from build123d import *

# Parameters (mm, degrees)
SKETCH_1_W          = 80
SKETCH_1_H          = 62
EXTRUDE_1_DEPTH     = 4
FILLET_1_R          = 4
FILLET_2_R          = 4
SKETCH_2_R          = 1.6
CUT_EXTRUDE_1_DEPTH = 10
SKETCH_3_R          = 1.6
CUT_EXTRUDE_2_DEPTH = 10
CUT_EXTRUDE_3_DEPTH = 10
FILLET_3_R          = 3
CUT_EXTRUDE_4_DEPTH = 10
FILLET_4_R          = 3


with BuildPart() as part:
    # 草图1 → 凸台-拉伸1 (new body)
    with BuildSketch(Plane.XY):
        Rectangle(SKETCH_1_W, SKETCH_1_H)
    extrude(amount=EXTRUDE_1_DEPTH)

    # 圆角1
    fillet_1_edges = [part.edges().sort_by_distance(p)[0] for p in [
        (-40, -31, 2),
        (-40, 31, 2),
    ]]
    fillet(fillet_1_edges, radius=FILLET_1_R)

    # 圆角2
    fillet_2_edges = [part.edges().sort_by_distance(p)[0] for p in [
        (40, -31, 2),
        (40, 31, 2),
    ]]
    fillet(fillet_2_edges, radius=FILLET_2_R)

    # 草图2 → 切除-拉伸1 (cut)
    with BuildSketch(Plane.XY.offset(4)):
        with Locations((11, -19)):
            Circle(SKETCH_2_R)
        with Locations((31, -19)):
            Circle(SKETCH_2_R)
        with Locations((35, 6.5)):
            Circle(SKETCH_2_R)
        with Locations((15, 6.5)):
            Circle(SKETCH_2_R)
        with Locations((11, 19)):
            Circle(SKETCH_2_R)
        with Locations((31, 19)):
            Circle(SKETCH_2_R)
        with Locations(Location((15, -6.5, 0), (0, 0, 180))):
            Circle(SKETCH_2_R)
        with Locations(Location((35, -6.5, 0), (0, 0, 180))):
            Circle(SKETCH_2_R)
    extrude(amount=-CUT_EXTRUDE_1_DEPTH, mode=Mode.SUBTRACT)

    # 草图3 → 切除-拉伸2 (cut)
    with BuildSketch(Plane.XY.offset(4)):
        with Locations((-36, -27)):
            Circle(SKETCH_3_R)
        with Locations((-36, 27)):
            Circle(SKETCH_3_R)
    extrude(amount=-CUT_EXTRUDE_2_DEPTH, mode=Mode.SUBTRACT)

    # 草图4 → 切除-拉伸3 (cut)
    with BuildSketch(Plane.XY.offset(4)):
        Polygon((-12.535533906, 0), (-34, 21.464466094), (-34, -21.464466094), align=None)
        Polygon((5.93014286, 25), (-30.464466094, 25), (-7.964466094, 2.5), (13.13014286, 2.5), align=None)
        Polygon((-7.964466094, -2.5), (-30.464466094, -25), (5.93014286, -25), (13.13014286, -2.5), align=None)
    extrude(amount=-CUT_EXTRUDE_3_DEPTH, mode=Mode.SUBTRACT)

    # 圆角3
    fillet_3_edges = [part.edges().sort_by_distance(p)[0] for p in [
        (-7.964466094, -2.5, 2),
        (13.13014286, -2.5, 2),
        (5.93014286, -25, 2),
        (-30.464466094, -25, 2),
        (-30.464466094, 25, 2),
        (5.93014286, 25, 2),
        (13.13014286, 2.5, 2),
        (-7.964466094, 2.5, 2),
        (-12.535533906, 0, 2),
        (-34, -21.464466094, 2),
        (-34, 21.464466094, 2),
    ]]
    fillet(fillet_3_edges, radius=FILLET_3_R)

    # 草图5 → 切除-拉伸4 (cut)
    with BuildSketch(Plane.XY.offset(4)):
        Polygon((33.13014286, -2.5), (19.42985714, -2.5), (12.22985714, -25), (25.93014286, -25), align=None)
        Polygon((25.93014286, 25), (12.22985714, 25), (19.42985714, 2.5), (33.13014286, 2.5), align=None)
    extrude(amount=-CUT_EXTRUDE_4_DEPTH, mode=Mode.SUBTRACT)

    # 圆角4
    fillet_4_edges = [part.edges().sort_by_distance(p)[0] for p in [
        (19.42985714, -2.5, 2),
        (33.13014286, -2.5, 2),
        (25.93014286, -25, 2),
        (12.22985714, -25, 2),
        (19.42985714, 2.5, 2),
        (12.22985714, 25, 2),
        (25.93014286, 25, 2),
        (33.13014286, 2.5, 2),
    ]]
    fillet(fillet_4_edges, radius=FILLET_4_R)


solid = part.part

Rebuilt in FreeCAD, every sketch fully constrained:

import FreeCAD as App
import Part
import Sketcher
Q = App.Units.Quantity


def edges_at(feature, points):
    """Names of the edges that pass closest to the given points."""
    edges = feature.Shape.Edges
    near = lambda p: min(range(len(edges)), key=lambda i: edges[i].distToShape(Part.Vertex(*p))[0])
    return sorted({f"Edge{near(p) + 1}" for p in points})


def add_polygon(sketch, points):
    """Adds a closed chain of lines whose ends are joined by coincident constraints."""
    first, n = sketch.GeometryCount, len(points)
    for a, b in zip(points, points[1:] + points[:1]):
        sketch.addGeometry(Part.LineSegment(App.Vector(*a, 0), App.Vector(*b, 0)), False)
    for i in range(n):
        sketch.addConstraint(Sketcher.Constraint("Coincident", first + i, 2, first + (i + 1) % n, 1))

doc = App.newDocument("Part")
body = doc.addObject("PartDesign::Body", "Body")

# Sketch on XY plane
sketch1 = doc.addObject("Sketcher::SketchObject", "Sketch")
body.addObject(sketch1)
sketch1.AttachmentSupport = (doc.XY_Plane, [""])
sketch1.MapMode = "FlatFace"
add_polygon(sketch1, [(-40, 31), (-40, -31), (40, -31), (40, 31)])  # lines 0-3
sketch1.addConstraint(Sketcher.Constraint("Vertical", 0))
sketch1.addConstraint(Sketcher.Constraint("Horizontal", 1))
sketch1.addConstraint(Sketcher.Constraint("Vertical", 2))
sketch1.addConstraint(Sketcher.Constraint("Horizontal", 3))
sketch1.addConstraint(Sketcher.Constraint("Symmetric", 0, 2, 2, 2, -1, 1))
sketch1.addConstraint(Sketcher.Constraint("DistanceX", 1, 1, 1, 2, Q("80 mm")))
sketch1.addConstraint(Sketcher.Constraint("DistanceY", 0, 2, 0, 1, Q("62 mm")))
pad1 = doc.addObject("PartDesign::Pad", "Pad")
body.addObject(pad1)
pad1.Profile = sketch1
pad1.Length = 4
doc.recompute()

fillet = doc.addObject("PartDesign::Fillet", "Fillet")
body.addObject(fillet)
fillet.Base = (pad1, edges_at(pad1, [(-40, -31, 2), (-40, 31, 2)]))
fillet.Radius = 4
doc.recompute()

fillet2 = doc.addObject("PartDesign::Fillet", "Fillet001")
body.addObject(fillet2)
fillet2.Base = (fillet, edges_at(fillet, [(40, -31, 2), (40, 31, 2)]))
fillet2.Radius = 4

# Sketch on XY plane
sketch2 = doc.addObject("Sketcher::SketchObject", "Sketch001")
body.addObject(sketch2)
sketch2.AttachmentSupport = (doc.XY_Plane, [""])
sketch2.MapMode = "FlatFace"
sketch2.AttachmentOffset = App.Placement(App.Vector(0, 0, 4), App.Rotation())
sketch2.addGeometry(Part.Circle(App.Vector(11, -19, 0), App.Vector(0, 0, 1), 1.6), False)
sketch2.addGeometry(Part.Circle(App.Vector(31, -19, 0), App.Vector(0, 0, 1), 1.6), False)
sketch2.addGeometry(Part.Circle(App.Vector(35, 6.5, 0), App.Vector(0, 0, 1), 1.6), False)
sketch2.addGeometry(Part.Circle(App.Vector(15, 6.5, 0), App.Vector(0, 0, 1), 1.6), False)
sketch2.addGeometry(Part.Circle(App.Vector(11, 19, 0), App.Vector(0, 0, 1), 1.6), False)
sketch2.addGeometry(Part.Circle(App.Vector(31, 19, 0), App.Vector(0, 0, 1), 1.6), False)
sketch2.addGeometry(Part.Circle(App.Vector(15, -6.5, 0), App.Vector(0, 0, 1), 1.6), False)
sketch2.addGeometry(Part.Circle(App.Vector(35, -6.5, 0), App.Vector(0, 0, 1), 1.6), False)
sketch2.addConstraint(Sketcher.Constraint("Equal", 0, 1))
sketch2.addConstraint(Sketcher.Constraint("Equal", 1, 2))
sketch2.addConstraint(Sketcher.Constraint("Equal", 2, 3))
sketch2.addConstraint(Sketcher.Constraint("Equal", 3, 4))
sketch2.addConstraint(Sketcher.Constraint("Equal", 4, 5))
sketch2.addConstraint(Sketcher.Constraint("Equal", 5, 6))
sketch2.addConstraint(Sketcher.Constraint("Equal", 6, 7))
sketch2.addConstraint(Sketcher.Constraint("Symmetric", 0, 3, 4, 3, -1))
sketch2.addConstraint(Sketcher.Constraint("Symmetric", 1, 3, 5, 3, -1))
sketch2.addConstraint(Sketcher.Constraint("Symmetric", 3, 3, 6, 3, -1))
sketch2.addConstraint(Sketcher.Constraint("Symmetric", 2, 3, 7, 3, -1))
sketch2.addConstraint(Sketcher.Constraint("Horizontal", 0, 3, 1, 3))
sketch2.addConstraint(Sketcher.Constraint("Horizontal", 2, 3, 3, 3))
sketch2.addConstraint(Sketcher.Constraint("Diameter", 0, Q("3.2 mm")))
sketch2.addConstraint(Sketcher.Constraint("DistanceX", -1, 1, 0, 3, Q("11 mm")))
sketch2.addConstraint(Sketcher.Constraint("DistanceY", 0, 3, -1, 1, Q("19 mm")))
sketch2.addConstraint(Sketcher.Constraint("DistanceX", -1, 1, 1, 3, Q("31 mm")))
sketch2.addConstraint(Sketcher.Constraint("DistanceX", -1, 1, 2, 3, Q("35 mm")))
sketch2.addConstraint(Sketcher.Constraint("DistanceX", -1, 1, 3, 3, Q("15 mm")))
sketch2.addConstraint(Sketcher.Constraint("DistanceY", 6, 3, 3, 3, Q("13 mm")))
pocket1 = doc.addObject("PartDesign::Pocket", "Pocket")
body.addObject(pocket1)
pocket1.Profile = sketch2
pocket1.Length = 10

# Sketch on XY plane
sketch3 = doc.addObject("Sketcher::SketchObject", "Sketch002")
body.addObject(sketch3)
sketch3.AttachmentSupport = (doc.XY_Plane, [""])
sketch3.MapMode = "FlatFace"
sketch3.AttachmentOffset = App.Placement(App.Vector(0, 0, 4), App.Rotation())
sketch3.addGeometry(Part.Circle(App.Vector(-36, -27, 0), App.Vector(0, 0, 1), 1.6), False)
sketch3.addGeometry(Part.Circle(App.Vector(-36, 27, 0), App.Vector(0, 0, 1), 1.6), False)
sketch3.addConstraint(Sketcher.Constraint("Equal", 0, 1))
sketch3.addConstraint(Sketcher.Constraint("Symmetric", 0, 3, 1, 3, -1))
sketch3.addConstraint(Sketcher.Constraint("Diameter", 0, Q("3.2 mm")))
sketch3.addConstraint(Sketcher.Constraint("DistanceX", 0, 3, -1, 1, Q("36 mm")))
sketch3.addConstraint(Sketcher.Constraint("DistanceY", 0, 3, -1, 1, Q("27 mm")))
pocket2 = doc.addObject("PartDesign::Pocket", "Pocket001")
body.addObject(pocket2)
pocket2.Profile = sketch3
pocket2.Length = 10

# Sketch on XY plane
sketch4 = doc.addObject("Sketcher::SketchObject", "Sketch003")
body.addObject(sketch4)
sketch4.AttachmentSupport = (doc.XY_Plane, [""])
sketch4.MapMode = "FlatFace"
sketch4.AttachmentOffset = App.Placement(App.Vector(0, 0, 4), App.Rotation())
add_polygon(sketch4, [(-12.535534, 0), (-34, 21.464466), (-34, -21.464466)])  # lines 0-2
add_polygon(sketch4, [(5.930143, 25), (-30.464466, 25), (-7.964466, 2.5), (13.130143, 2.5)])  # lines 3-6
add_polygon(sketch4, [(-7.964466, -2.5), (-30.464466, -25), (5.930143, -25), (13.130143, -2.5)])  # lines 7-10
sketch4.addConstraint(Sketcher.Constraint("Vertical", 1))
sketch4.addConstraint(Sketcher.Constraint("Horizontal", 3))
sketch4.addConstraint(Sketcher.Constraint("Horizontal", 5))
sketch4.addConstraint(Sketcher.Constraint("Horizontal", 8))
sketch4.addConstraint(Sketcher.Constraint("Horizontal", 10))
sketch4.addConstraint(Sketcher.Constraint("Symmetric", 3, 2, 7, 2, -1))
sketch4.addConstraint(Sketcher.Constraint("Symmetric", 5, 2, 9, 2, -1))
sketch4.addConstraint(Sketcher.Constraint("PointOnObject", 2, 2, -1))
sketch4.addConstraint(Sketcher.Constraint("Perpendicular", 0, 2))
sketch4.addConstraint(Sketcher.Constraint("Perpendicular", 2, 4))
sketch4.addConstraint(Sketcher.Constraint("Perpendicular", 4, 7))
sketch4.addConstraint(Sketcher.Constraint("Vertical", 6, 2, 8, 2))
sketch4.addConstraint(Sketcher.Constraint("Vertical", 4, 2, 10, 2))
sketch4.addConstraint(Sketcher.Constraint("DistanceX", 0, 2, -1, 1, Q("34 mm")))
sketch4.addConstraint(Sketcher.Constraint("DistanceY", -1, 1, 3, 2, Q("25 mm")))
sketch4.addConstraint(Sketcher.Constraint("DistanceY", 9, 2, 5, 2, Q("5 mm")))
sketch4.addConstraint(Sketcher.Constraint("DistanceX", 6, 2, 5, 2, Q("7.2 mm")))
sketch4.addConstraint(Sketcher.Constraint("DistanceX", 3, 2, 3, 1, Q("36.394609 mm")))
sketch4.addConstraint(Sketcher.Constraint("Distance", 0, Q("30.355339 mm")))
sketch4.addConstraint(Sketcher.Constraint("DistanceX", 3, 2, -1, 1, Q("30.464466 mm")))
pocket3 = doc.addObject("PartDesign::Pocket", "Pocket002")
body.addObject(pocket3)
pocket3.Profile = sketch4
pocket3.Length = 10
doc.recompute()

fillet3 = doc.addObject("PartDesign::Fillet", "Fillet002")
body.addObject(fillet3)
fillet3.Base = (pocket3, edges_at(pocket3, [
    (-7.964, -2.5, 2),
    (13.13, -2.5, 2),
    (5.93, -25, 2),
    (-30.464, -25, 2),
    (-30.464, 25, 2),
    (5.93, 25, 2),
    (13.13, 2.5, 2),
    (-7.964, 2.5, 2),
    (-12.536, 0, 2),
    (-34, -21.464, 2),
    (-34, 21.464, 2),
]))
fillet3.Radius = 3

# Sketch on XY plane
sketch5 = doc.addObject("Sketcher::SketchObject", "Sketch004")
body.addObject(sketch5)
sketch5.AttachmentSupport = (doc.XY_Plane, [""])
sketch5.MapMode = "FlatFace"
sketch5.AttachmentOffset = App.Placement(App.Vector(0, 0, 4), App.Rotation())
add_polygon(sketch5, [(33.130143, -2.5), (19.429857, -2.5), (12.229857, -25), (25.930143, -25)])  # lines 0-3
add_polygon(sketch5, [(25.930143, 25), (12.229857, 25), (19.429857, 2.5), (33.130143, 2.5)])  # lines 4-7
sketch5.addConstraint(Sketcher.Constraint("Horizontal", 0))
sketch5.addConstraint(Sketcher.Constraint("Horizontal", 2))
sketch5.addConstraint(Sketcher.Constraint("Horizontal", 4))
sketch5.addConstraint(Sketcher.Constraint("Horizontal", 6))
sketch5.addConstraint(Sketcher.Constraint("Symmetric", 1, 2, 4, 2, -1))
sketch5.addConstraint(Sketcher.Constraint("Symmetric", 0, 2, 5, 2, -1))
sketch5.addConstraint(Sketcher.Constraint("Parallel", 1, 3))
sketch5.addConstraint(Sketcher.Constraint("Parallel", 5, 7))
sketch5.addConstraint(Sketcher.Constraint("Vertical", 3, 2, 6, 2))
sketch5.addConstraint(Sketcher.Constraint("DistanceY", 1, 2, -1, 1, Q("25 mm")))
sketch5.addConstraint(Sketcher.Constraint("DistanceY", 0, 2, 5, 2, Q("5 mm")))
sketch5.addConstraint(Sketcher.Constraint("DistanceX", 1, 2, 0, 2, Q("7.2 mm")))
sketch5.addConstraint(Sketcher.Constraint("DistanceX", 0, 2, 0, 1, Q("13.700286 mm")))
sketch5.addConstraint(Sketcher.Constraint("DistanceX", -1, 1, 0, 2, Q("19.429857 mm")))
pocket4 = doc.addObject("PartDesign::Pocket", "Pocket003")
body.addObject(pocket4)
pocket4.Profile = sketch5
pocket4.Length = 10
doc.recompute()

fillet4 = doc.addObject("PartDesign::Fillet", "Fillet003")
body.addObject(fillet4)
fillet4.Base = (pocket4, edges_at(pocket4, [
    (19.43, -2.5, 2),
    (33.13, -2.5, 2),
    (25.93, -25, 2),
    (12.23, -25, 2),
    (19.43, 2.5, 2),
    (12.23, 25, 2),
    (25.93, 25, 2),
    (33.13, 2.5, 2),
]))
fillet4.Radius = 3

doc.recompute()
